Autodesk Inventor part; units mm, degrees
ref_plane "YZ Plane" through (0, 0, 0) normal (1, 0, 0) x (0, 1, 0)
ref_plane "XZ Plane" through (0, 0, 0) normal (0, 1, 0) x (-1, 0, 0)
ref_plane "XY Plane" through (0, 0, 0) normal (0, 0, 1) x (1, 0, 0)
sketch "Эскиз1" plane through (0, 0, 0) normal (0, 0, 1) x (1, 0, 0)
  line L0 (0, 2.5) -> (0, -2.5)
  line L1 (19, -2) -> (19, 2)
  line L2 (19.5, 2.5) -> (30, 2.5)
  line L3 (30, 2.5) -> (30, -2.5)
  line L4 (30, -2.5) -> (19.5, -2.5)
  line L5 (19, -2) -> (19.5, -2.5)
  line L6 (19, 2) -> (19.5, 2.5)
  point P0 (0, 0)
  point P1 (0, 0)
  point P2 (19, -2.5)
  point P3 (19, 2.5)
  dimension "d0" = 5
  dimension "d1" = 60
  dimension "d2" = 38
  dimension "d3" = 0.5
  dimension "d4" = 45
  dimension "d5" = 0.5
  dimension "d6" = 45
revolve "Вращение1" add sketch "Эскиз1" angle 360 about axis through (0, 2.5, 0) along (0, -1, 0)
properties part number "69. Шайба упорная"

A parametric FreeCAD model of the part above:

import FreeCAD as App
import Part
import Sketcher

V = App.Vector


def add_polygon(sketch, points):
    """Adds a closed chain of lines whose ends are joined by coincident constraints."""
    first, n = sketch.GeometryCount, len(points)
    for a, b in zip(points, points[1:] + points[:1]):
        sketch.addGeometry(Part.LineSegment(App.Vector(*a, 0), App.Vector(*b, 0)), False)
    for i in range(n):
        sketch.addConstraint(Sketcher.Constraint("Coincident", first + i, 2, first + (i + 1) % n, 1))

doc = App.newDocument("Part")
body = doc.addObject("PartDesign::Body", "Body")

# Sketch on XY plane
sketch1 = body.newObject("Sketcher::SketchObject", "Sketch")
sketch1.AttachmentSupport = (doc.getObject("XY_Plane"), [""])
sketch1.MapMode = "FlatFace"
add_polygon(sketch1, [(19, 2), (19, -2), (19.5, -2.5), (30, -2.5), (30, 2.5), (19.5, 2.5)])  # lines 0-5
sketch1.addConstraint(Sketcher.Constraint("Vertical", 0))
sketch1.addConstraint(Sketcher.Constraint("Horizontal", 2))
sketch1.addConstraint(Sketcher.Constraint("Vertical", 3))
sketch1.addConstraint(Sketcher.Constraint("Horizontal", 4))
sketch1.addConstraint(Sketcher.Constraint("Symmetric", 1, 2, 4, 2, -1))
sketch1.addConstraint(Sketcher.Constraint("Perpendicular", 1, 5))
sketch1.addConstraint(Sketcher.Constraint("Equal", 1, 5))
sketch1.addConstraint(Sketcher.Constraint("DistanceY", 3, 1, 3, 2, 5.0))
sketch1.addConstraint(Sketcher.Constraint("DistanceX", 0, 2, 1, 2, 0.5))
sketch1.addConstraint(Sketcher.Constraint("DistanceX", 2, 1, 2, 2, 10.5))
sketch1.addConstraint(Sketcher.Constraint("DistanceX", -1, 1, 0, 2, 19.0))
revolution = body.newObject("PartDesign::Revolution", "Revolution")
revolution.Profile = sketch1
revolution.ReferenceAxis = (sketch1, ["V_Axis"])
revolution.Angle = 360

doc.recompute()
